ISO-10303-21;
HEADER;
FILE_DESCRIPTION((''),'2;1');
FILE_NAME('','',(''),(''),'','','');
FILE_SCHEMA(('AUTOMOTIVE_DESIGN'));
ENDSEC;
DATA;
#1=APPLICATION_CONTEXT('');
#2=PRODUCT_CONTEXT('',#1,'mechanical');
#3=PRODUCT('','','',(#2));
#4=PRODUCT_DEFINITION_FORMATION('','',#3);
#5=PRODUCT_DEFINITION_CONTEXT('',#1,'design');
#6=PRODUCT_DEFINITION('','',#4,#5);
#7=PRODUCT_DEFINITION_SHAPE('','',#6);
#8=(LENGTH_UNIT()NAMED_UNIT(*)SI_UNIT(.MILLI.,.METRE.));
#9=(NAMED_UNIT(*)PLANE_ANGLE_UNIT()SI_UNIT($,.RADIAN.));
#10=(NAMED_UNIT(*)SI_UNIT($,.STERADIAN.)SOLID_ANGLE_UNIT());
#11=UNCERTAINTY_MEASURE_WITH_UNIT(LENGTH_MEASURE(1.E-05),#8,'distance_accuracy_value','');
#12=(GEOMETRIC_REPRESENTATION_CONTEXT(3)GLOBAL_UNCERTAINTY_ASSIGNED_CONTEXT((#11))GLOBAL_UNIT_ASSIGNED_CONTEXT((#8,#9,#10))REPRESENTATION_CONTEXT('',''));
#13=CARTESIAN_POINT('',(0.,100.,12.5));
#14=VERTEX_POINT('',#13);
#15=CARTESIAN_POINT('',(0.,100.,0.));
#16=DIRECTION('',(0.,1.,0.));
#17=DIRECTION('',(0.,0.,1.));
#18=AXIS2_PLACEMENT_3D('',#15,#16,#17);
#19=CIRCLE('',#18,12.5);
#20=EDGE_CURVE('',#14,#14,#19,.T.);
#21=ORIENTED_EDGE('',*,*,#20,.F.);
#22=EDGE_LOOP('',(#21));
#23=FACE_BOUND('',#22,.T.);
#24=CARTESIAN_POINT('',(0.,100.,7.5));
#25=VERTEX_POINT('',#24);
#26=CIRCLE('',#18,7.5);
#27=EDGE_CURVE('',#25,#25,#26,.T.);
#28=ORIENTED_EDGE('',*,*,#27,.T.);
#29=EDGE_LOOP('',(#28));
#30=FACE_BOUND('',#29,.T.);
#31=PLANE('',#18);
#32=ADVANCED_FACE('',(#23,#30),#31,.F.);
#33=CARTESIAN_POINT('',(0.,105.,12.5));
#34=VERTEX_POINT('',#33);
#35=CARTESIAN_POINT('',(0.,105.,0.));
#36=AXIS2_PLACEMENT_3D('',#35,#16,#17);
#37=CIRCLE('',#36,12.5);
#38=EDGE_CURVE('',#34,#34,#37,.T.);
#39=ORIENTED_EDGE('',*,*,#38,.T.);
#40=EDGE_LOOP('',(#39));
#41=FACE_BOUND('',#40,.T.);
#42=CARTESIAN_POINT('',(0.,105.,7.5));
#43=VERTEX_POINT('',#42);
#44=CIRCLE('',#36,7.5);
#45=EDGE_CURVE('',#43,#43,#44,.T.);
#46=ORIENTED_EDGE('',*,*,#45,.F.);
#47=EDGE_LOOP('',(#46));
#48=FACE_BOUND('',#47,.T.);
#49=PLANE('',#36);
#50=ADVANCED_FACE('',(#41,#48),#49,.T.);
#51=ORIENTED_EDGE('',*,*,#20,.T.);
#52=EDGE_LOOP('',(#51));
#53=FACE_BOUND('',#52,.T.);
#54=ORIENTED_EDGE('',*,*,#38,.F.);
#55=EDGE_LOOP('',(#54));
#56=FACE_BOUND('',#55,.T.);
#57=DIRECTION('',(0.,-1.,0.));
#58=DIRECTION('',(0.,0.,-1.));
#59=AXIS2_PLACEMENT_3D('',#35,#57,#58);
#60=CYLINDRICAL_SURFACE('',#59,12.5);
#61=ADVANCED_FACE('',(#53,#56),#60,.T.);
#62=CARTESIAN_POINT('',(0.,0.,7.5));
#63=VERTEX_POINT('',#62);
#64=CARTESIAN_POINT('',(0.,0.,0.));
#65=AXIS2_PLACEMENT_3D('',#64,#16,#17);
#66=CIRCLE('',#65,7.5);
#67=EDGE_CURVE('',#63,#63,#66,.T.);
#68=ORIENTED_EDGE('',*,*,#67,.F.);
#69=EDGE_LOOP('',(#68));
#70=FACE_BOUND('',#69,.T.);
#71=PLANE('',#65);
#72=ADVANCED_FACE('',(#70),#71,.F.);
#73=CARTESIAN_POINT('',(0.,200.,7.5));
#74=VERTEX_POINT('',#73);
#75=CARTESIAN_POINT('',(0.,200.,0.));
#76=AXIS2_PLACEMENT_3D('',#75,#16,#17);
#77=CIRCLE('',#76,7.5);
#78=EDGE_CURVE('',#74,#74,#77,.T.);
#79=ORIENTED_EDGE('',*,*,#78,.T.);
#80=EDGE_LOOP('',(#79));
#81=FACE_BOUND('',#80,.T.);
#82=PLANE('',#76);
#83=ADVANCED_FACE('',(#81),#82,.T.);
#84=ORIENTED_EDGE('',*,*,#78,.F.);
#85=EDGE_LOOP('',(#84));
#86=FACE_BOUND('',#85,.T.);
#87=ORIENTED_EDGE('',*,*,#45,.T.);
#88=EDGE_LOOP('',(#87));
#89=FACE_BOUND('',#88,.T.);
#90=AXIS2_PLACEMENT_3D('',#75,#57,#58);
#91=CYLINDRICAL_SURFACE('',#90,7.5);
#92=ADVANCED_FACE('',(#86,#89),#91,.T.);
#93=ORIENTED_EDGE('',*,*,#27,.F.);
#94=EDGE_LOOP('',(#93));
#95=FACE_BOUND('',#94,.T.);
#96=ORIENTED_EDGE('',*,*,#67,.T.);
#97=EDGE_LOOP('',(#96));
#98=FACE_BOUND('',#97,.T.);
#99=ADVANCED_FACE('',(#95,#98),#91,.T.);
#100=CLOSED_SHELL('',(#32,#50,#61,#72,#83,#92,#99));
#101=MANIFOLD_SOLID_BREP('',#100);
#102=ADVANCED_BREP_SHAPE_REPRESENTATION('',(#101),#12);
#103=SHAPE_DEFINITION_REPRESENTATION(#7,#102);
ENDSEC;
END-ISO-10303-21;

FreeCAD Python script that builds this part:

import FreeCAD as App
import Part
import Sketcher

doc = App.newDocument("Part")
body = doc.addObject("PartDesign::Body", "Body")

# Sketch on XZ plane
sketch1 = doc.addObject("Sketcher::SketchObject", "Sketch")
body.addObject(sketch1)
sketch1.AttachmentSupport = (doc.XZ_Plane, [""])
sketch1.MapMode = "FlatFace"
sketch1.addGeometry(Part.Circle(App.Vector(0, 0, 0), App.Vector(0, 0, 1), 8), False)
sketch1.addConstraint([
    Sketcher.Constraint("Coincident", 0, 3, -1, 1),
    Sketcher.Constraint("Diameter", 0, 15.0),
])
pad1 = doc.addObject("PartDesign::Pad", "Pad")
body.addObject(pad1)
pad1.Profile = sketch1
pad1.Length = 200
pad1.Reversed = True

# Sketch on XZ plane
sketch2 = doc.addObject("Sketcher::SketchObject", "Sketch001")
body.addObject(sketch2)
sketch2.AttachmentSupport = (doc.XZ_Plane, [""])
sketch2.MapMode = "FlatFace"
sketch2.AttachmentOffset = App.Placement(App.Vector(0, 0, -100), App.Rotation())
sketch2.addGeometry(Part.Circle(App.Vector(0, 0, 0), App.Vector(0, 0, 1), 12), False)
sketch2.addConstraint([
    Sketcher.Constraint("Coincident", 0, 3, -1, 1),
    Sketcher.Constraint("Diameter", 0, 25.0),
])
pad2 = doc.addObject("PartDesign::Pad", "Pad001")
body.addObject(pad2)
pad2.Profile = sketch2
pad2.Length = 5
pad2.Reversed = True

doc.recompute()
